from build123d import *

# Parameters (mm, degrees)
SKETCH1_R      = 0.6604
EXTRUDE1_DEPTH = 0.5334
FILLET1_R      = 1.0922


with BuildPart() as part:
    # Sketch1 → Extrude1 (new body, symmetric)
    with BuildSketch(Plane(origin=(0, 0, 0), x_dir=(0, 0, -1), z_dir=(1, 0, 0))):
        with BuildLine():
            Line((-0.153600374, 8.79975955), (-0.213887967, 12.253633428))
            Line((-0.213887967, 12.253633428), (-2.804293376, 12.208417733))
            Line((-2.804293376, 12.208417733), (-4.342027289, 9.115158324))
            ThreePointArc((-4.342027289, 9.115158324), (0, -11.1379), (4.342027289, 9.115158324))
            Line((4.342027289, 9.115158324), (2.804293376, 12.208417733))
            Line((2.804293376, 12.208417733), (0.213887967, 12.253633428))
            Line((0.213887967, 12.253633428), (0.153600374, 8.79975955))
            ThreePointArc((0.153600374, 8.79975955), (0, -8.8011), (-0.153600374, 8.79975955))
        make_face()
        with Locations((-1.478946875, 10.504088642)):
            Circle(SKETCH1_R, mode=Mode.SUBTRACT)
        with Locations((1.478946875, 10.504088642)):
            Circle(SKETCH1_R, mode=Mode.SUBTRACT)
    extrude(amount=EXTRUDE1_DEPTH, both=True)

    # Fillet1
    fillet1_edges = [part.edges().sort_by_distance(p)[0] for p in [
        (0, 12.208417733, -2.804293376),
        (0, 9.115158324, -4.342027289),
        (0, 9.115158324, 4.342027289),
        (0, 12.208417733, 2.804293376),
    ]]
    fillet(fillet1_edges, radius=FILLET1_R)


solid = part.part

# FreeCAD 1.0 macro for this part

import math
import FreeCAD as App
import Part
import Sketcher
from FreeCAD import Vector
Q = App.Units.Quantity


def edges_at(feature, points):
    """Names of the edges that pass closest to the given points."""
    edges = feature.Shape.Edges
    near = lambda p: min(range(len(edges)), key=lambda i: edges[i].distToShape(Part.Vertex(*p))[0])
    return sorted({f"Edge{near(p) + 1}" for p in points})

doc = App.newDocument("Part")
body = doc.addObject("PartDesign::Body", "Body")

# Sketch on YZ plane
sketch1 = doc.addObject("Sketcher::SketchObject", "Sketch")
body.addObject(sketch1)
sketch1.AttachmentSupport = (doc.YZ_Plane, [""])
sketch1.MapMode = "FlatFace"
sketch1.addGeometry(Part.LineSegment(Vector(8.79976, 0.1536, 0), Vector(12.253633, 0.213888, 0)), False)
sketch1.addGeometry(Part.LineSegment(Vector(12.253633, 0.213888, 0), Vector(12.208418, 2.804293, 0)), False)
sketch1.addGeometry(Part.LineSegment(Vector(12.208418, 2.804293, 0), Vector(9.115158, 4.342027, 0)), False)
sketch1.addGeometry(Part.ArcOfCircle(Part.Circle(Vector(-0.54593, 0, 0), Vector(0, 0, 1), 10.59197), math.radians(24.2008), math.radians(335.7992)), False)
sketch1.addGeometry(Part.LineSegment(Vector(9.115158, -4.342027, 0), Vector(12.208418, -2.804293, 0)), False)
sketch1.addGeometry(Part.LineSegment(Vector(12.208418, -2.804293, 0), Vector(12.253633, -0.213888, 0)), False)
sketch1.addGeometry(Part.LineSegment(Vector(12.253633, -0.213888, 0), Vector(8.79976, -0.1536, 0)), False)
sketch1.addGeometry(Part.ArcOfCircle(Part.Circle(Vector(0, 0, 0), Vector(0, 0, 1), 8.8011), math.radians(1), math.radians(359)), False)
sketch1.addGeometry(Part.Circle(Vector(10.504089, 1.478947, 0), Vector(0, 0, 1), 0.6604), False)
sketch1.addGeometry(Part.Circle(Vector(10.504089, -1.478947, 0), Vector(0, 0, 1), 0.6604), False)
sketch1.addConstraint(Sketcher.Constraint("Coincident", 0, 2, 1, 1))
sketch1.addConstraint(Sketcher.Constraint("Coincident", 1, 2, 2, 1))
sketch1.addConstraint(Sketcher.Constraint("Coincident", 2, 2, 3, 1))
sketch1.addConstraint(Sketcher.Constraint("Coincident", 3, 2, 4, 1))
sketch1.addConstraint(Sketcher.Constraint("Coincident", 4, 2, 5, 1))
sketch1.addConstraint(Sketcher.Constraint("Coincident", 5, 2, 6, 1))
sketch1.addConstraint(Sketcher.Constraint("Coincident", 6, 2, 7, 2))
sketch1.addConstraint(Sketcher.Constraint("Coincident", 7, 1, 0, 1))
sketch1.addConstraint(Sketcher.Constraint("Coincident", 7, 3, -1, 1))
sketch1.addConstraint(Sketcher.Constraint("Equal", 8, 9))
sketch1.addConstraint(Sketcher.Constraint("Symmetric", 8, 3, 9, 3, -1))
sketch1.addConstraint(Sketcher.Constraint("Symmetric", 2, 2, 3, 2, -1))
sketch1.addConstraint(Sketcher.Constraint("Symmetric", 1, 2, 4, 2, -1))
sketch1.addConstraint(Sketcher.Constraint("Symmetric", 0, 2, 5, 2, -1))
sketch1.addConstraint(Sketcher.Constraint("Perpendicular", 0, 1))
sketch1.addConstraint(Sketcher.Constraint("Perpendicular", 5, 6))
sketch1.addConstraint(Sketcher.Constraint("Equal", 0, 2))
sketch1.addConstraint(Sketcher.Constraint("Diameter", 8, Q("0.052 in")))
sketch1.addConstraint(Sketcher.Constraint("Angle", 0, Q("1 deg")))
sketch1.addConstraint(Sketcher.Constraint("Radius", 7, Q("0.3465 in")))
sketch1.addConstraint(Sketcher.Constraint("Distance", 0, Q("0.136 in")))
sketch1.addConstraint(Sketcher.Constraint("Distance", 1, Q("0.102 in")))
sketch1.addConstraint(Sketcher.Constraint("Radius", 3, 10.59197))
sketch1.addConstraint(Sketcher.Constraint("DistanceY", 6, 2, -1, 1, 0.1536))
sketch1.addConstraint(Sketcher.Constraint("DistanceX", 6, 2, 3, 2, 0.315399))
sketch1.addConstraint(Sketcher.Constraint("DistanceX", -1, 1, 8, 3, 10.504089))
sketch1.addConstraint(Sketcher.Constraint("DistanceY", 0, 2, 8, 3, 1.265059))
pad1 = doc.addObject("PartDesign::Pad", "Pad")
body.addObject(pad1)
pad1.Profile = sketch1
pad1.Length = Q("0.042 in")
pad1.Midplane = True
doc.recompute()

fillet = doc.addObject("PartDesign::Fillet", "Fillet")
body.addObject(fillet)
fillet.Base = (pad1, edges_at(pad1, [
    (0, 12.208, -2.804),
    (0, 9.115, -4.342),
    (0, 9.115, 4.342),
    (0, 12.208, 2.804),
]))
fillet.Radius = Q("0.043 in")

doc.recompute()
